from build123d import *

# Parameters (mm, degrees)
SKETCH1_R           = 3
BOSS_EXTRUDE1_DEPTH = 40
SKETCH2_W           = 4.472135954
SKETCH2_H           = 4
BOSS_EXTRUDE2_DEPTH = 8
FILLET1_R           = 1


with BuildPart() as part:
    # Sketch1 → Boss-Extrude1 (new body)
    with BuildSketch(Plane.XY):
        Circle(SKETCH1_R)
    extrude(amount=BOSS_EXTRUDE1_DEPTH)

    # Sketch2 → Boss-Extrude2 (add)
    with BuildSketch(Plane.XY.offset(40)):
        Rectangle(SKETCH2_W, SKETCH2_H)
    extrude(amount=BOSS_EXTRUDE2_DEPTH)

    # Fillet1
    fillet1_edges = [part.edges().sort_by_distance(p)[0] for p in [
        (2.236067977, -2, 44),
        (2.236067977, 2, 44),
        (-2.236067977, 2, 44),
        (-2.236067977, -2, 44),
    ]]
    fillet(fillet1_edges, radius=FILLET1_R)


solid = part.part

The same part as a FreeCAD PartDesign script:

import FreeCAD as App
import Part
import Sketcher

V = App.Vector
Q = App.Units.Quantity


def edges_at(feature, points):
    """Names of the edges that pass closest to the given points."""
    edges = feature.Shape.Edges
    near = lambda p: min(range(len(edges)), key=lambda i: edges[i].distToShape(Part.Vertex(*p))[0])
    return sorted({f"Edge{near(p) + 1}" for p in points})

doc = App.newDocument("Part")
body = doc.addObject("PartDesign::Body", "Body")

# Sketch on XY plane
sketch1 = body.newObject("Sketcher::SketchObject", "Sketch")
sketch1.AttachmentSupport = (doc.getObject("XY_Plane"), [""])
sketch1.MapMode = "FlatFace"
sketch1.addGeometry(Part.Circle(V(0, 0, 0), V(0, 0, 1), 3), False)
sketch1.addConstraint([
    Sketcher.Constraint("Coincident", 0, 3, -1, 1),
    Sketcher.Constraint("Diameter", 0, Q("6 mm")),
])
pad1 = body.newObject("PartDesign::Pad", "Pad")
pad1.Profile = sketch1
pad1.Length = 40

# Sketch on XY plane
sketch2 = body.newObject("Sketcher::SketchObject", "Sketch001")
sketch2.AttachmentSupport = (doc.getObject("XY_Plane"), [""])
sketch2.MapMode = "FlatFace"
sketch2.AttachmentOffset = App.Placement(V(0, 0, 40), App.Rotation())
sketch2.addGeometry([
    Part.LineSegment(V(-2.2, 2, 0), V(-2.2, -2, 0)),
    Part.LineSegment(V(-2.2, -2, 0), V(2.2, -2, 0)),
    Part.LineSegment(V(2.2, -2, 0), V(2.2, 2, 0)),
    Part.LineSegment(V(2.2, 2, 0), V(-2.2, 2, 0)),
], False)
sketch2.addConstraint([
    Sketcher.Constraint("Coincident", 0, 2, 1, 1),
    Sketcher.Constraint("Coincident", 1, 2, 2, 1),
    Sketcher.Constraint("Coincident", 2, 2, 3, 1),
    Sketcher.Constraint("Coincident", 3, 2, 0, 1),
    Sketcher.Constraint("Vertical", 0),
    Sketcher.Constraint("Horizontal", 1),
    Sketcher.Constraint("Vertical", 2),
    Sketcher.Constraint("Horizontal", 3),
    Sketcher.Constraint("Symmetric", 0, 2, 2, 2, -1, 1),
    Sketcher.Constraint("DistanceY", 0, 2, 0, 1, Q("4 mm")),
    Sketcher.Constraint("DistanceX", 1, 1, 1, 2, Q("4.472136 mm")),
])
pad2 = body.newObject("PartDesign::Pad", "Pad001")
pad2.Profile = sketch2
pad2.Length = 8
doc.recompute()

fillet = body.newObject("PartDesign::Fillet", "Fillet")
fillet.Base = (pad2, edges_at(pad2, [
    (2.236, -2, 44),
    (2.236, 2, 44),
    (-2.236, 2, 44),
    (-2.236, -2, 44),
]))
fillet.Radius = 1

doc.recompute()
